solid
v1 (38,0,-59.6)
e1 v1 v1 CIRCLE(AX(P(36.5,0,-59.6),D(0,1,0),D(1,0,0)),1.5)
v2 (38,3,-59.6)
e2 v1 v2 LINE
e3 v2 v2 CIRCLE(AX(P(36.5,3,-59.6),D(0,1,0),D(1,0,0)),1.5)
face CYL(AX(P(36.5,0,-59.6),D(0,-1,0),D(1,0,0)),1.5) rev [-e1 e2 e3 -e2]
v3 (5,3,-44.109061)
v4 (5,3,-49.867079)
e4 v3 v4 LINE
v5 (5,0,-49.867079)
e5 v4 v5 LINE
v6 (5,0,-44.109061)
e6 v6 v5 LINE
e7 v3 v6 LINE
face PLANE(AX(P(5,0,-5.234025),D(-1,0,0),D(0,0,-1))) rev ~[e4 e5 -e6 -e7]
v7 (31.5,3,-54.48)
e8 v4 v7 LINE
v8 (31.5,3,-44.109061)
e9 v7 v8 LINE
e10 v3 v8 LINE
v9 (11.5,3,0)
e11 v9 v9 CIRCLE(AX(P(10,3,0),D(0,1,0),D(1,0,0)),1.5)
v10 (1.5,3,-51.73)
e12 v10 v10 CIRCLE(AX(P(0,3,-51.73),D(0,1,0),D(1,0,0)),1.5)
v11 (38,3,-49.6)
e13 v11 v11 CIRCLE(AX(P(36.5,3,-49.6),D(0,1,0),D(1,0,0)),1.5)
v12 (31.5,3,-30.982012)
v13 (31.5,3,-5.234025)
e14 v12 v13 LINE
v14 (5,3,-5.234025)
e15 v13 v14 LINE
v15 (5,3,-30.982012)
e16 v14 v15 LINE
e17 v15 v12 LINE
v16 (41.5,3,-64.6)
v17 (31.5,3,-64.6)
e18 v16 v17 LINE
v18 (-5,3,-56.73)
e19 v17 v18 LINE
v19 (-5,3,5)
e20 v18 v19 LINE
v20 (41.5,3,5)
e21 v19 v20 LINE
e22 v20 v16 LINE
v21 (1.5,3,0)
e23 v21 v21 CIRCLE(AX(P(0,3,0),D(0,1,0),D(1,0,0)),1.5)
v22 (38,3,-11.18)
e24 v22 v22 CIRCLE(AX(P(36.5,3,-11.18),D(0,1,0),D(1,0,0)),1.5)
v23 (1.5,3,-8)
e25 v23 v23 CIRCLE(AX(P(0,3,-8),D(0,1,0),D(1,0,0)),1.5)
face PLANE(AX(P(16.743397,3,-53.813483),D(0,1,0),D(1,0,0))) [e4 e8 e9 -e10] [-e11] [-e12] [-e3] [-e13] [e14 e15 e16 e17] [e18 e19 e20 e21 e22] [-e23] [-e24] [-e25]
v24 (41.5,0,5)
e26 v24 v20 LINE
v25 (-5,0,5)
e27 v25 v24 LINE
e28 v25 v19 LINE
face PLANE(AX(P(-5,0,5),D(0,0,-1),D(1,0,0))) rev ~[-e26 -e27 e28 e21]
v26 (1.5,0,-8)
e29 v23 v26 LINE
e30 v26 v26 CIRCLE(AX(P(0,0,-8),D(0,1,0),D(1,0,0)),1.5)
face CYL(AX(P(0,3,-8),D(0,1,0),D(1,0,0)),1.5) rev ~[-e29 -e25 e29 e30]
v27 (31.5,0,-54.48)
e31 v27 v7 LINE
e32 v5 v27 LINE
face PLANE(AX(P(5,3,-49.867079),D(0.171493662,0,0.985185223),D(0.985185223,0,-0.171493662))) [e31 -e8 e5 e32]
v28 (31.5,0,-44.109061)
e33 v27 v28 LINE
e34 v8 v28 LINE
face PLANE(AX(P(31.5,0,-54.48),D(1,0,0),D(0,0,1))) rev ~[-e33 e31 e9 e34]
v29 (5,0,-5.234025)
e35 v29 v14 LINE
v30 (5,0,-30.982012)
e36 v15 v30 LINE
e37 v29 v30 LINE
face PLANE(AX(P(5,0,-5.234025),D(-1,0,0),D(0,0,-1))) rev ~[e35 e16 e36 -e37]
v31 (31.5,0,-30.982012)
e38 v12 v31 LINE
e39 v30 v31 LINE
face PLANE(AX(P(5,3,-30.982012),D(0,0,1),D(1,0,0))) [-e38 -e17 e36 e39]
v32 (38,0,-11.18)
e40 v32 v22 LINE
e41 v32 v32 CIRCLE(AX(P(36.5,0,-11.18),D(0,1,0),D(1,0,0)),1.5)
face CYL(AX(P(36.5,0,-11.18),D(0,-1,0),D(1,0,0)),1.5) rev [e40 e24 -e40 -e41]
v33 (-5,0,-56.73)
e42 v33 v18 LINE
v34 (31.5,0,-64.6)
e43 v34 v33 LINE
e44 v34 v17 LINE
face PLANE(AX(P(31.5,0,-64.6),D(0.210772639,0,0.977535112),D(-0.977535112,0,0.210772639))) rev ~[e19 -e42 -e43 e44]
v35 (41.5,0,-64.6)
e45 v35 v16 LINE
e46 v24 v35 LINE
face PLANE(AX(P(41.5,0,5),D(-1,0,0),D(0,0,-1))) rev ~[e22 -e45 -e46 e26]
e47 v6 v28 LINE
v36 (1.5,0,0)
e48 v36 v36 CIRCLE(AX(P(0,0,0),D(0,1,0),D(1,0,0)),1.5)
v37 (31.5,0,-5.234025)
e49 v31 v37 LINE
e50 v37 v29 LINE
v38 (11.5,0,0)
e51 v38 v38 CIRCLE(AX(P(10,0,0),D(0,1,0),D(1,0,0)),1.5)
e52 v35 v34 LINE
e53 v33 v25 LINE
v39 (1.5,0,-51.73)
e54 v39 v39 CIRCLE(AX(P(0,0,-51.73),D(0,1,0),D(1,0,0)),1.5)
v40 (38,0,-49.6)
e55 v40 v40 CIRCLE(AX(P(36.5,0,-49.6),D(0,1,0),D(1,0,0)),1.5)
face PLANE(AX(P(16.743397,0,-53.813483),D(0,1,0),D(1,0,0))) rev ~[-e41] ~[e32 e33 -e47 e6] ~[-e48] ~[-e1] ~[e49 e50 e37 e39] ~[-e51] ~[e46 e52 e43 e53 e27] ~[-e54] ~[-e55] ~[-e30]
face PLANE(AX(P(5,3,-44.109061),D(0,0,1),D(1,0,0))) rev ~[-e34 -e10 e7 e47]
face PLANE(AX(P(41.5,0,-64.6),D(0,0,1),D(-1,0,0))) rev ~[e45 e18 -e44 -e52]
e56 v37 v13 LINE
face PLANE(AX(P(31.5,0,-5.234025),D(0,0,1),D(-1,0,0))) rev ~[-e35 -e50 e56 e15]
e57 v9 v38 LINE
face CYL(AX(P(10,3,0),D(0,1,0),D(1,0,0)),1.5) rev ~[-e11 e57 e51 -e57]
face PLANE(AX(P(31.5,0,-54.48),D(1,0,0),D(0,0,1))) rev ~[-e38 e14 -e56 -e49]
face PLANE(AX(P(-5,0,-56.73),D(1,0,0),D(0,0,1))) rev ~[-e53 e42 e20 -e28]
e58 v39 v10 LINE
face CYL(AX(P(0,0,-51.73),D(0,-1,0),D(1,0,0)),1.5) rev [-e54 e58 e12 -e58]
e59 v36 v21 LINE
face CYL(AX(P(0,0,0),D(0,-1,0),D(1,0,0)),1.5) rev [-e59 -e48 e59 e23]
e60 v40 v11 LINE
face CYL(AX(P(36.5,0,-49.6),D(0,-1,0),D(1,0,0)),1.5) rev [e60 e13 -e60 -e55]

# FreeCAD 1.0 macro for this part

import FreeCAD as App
import Part
import Sketcher


def add_polygon(sketch, points):
    """Adds a closed chain of lines whose ends are joined by coincident constraints."""
    first, n = sketch.GeometryCount, len(points)
    for a, b in zip(points, points[1:] + points[:1]):
        sketch.addGeometry(Part.LineSegment(App.Vector(*a, 0), App.Vector(*b, 0)), False)
    for i in range(n):
        sketch.addConstraint(Sketcher.Constraint("Coincident", first + i, 2, first + (i + 1) % n, 1))

doc = App.newDocument("Part")
body = doc.addObject("PartDesign::Body", "Body")

# Sketch on XZ plane
sketch1 = doc.addObject("Sketcher::SketchObject", "Sketch")
body.addObject(sketch1)
sketch1.AttachmentSupport = (doc.XZ_Plane, [""])
sketch1.MapMode = "FlatFace"
add_polygon(sketch1, [(-5, 5), (41.5, 5), (41.5, -64.6), (31.5, -64.6), (-5, -56.73)])  # lines 0-4
sketch1.addGeometry(Part.Circle(App.Vector(0, 0, 0), App.Vector(0, 0, 1), 1.5), False)  # 5
sketch1.addGeometry(Part.Circle(App.Vector(36.5, -11.18, 0), App.Vector(0, 0, 1), 1.5), False)  # 6
sketch1.addGeometry(Part.Circle(App.Vector(0, -51.73, 0), App.Vector(0, 0, 1), 1.5), False)  # 7
add_polygon(sketch1, [(5, -56.73), (31.5, -54.48), (31.5, -5.234025), (5, -5.234025)])  # lines 8-11
sketch1.addGeometry(Part.Circle(App.Vector(36.5, -49.6, 0), App.Vector(0, 0, 1), 1.5), False)  # 12
sketch1.addGeometry(Part.Circle(App.Vector(36.5, -59.6, 0), App.Vector(0, 0, 1), 1.5), False)  # 13
sketch1.addConstraint(Sketcher.Constraint("Horizontal", 0))
sketch1.addConstraint(Sketcher.Constraint("Vertical", 1))
sketch1.addConstraint(Sketcher.Constraint("Horizontal", 2))
sketch1.addConstraint(Sketcher.Constraint("Vertical", 4))
sketch1.addConstraint(Sketcher.Constraint("Vertical", 9))
sketch1.addConstraint(Sketcher.Constraint("Horizontal", 10))
sketch1.addConstraint(Sketcher.Constraint("Vertical", 11))
sketch1.addConstraint(Sketcher.Constraint("Coincident", 5, 3, -1, 1))
sketch1.addConstraint(Sketcher.Constraint("Equal", 5, 6))
sketch1.addConstraint(Sketcher.Constraint("Equal", 6, 7))
sketch1.addConstraint(Sketcher.Constraint("Equal", 7, 12))
sketch1.addConstraint(Sketcher.Constraint("Equal", 12, 13))
sketch1.addConstraint(Sketcher.Constraint("Symmetric", 3, 2, 11, 2, -2))
sketch1.addConstraint(Sketcher.Constraint("PointOnObject", 7, 3, -2))
sketch1.addConstraint(Sketcher.Constraint("Vertical", 6, 3, 12, 3))
sketch1.addConstraint(Sketcher.Constraint("Vertical", 12, 3, 13, 3))
sketch1.addConstraint(Sketcher.Constraint("Vertical", 2, 2, 8, 2))
sketch1.addConstraint(Sketcher.Constraint("Diameter", 5, 3.0))
sketch1.addConstraint(Sketcher.Constraint("DistanceX", 2, 2, 2, 1, 10.0))
sketch1.addConstraint(Sketcher.Constraint("DistanceX", 0, 1, 0, 2, 46.5))
sketch1.addConstraint(Sketcher.Constraint("DistanceX", 10, 2, 10, 1, 26.5))
sketch1.addConstraint(Sketcher.Constraint("DistanceY", 1, 2, 1, 1, 69.6))
sketch1.addConstraint(Sketcher.Constraint("DistanceY", -1, 1, 0, 2, 5.0))
sketch1.addConstraint(Sketcher.Constraint("DistanceY", 13, 3, 12, 3, 10.0))
sketch1.addConstraint(Sketcher.Constraint("DistanceX", 6, 3, 0, 2, 5.0))
sketch1.addConstraint(Sketcher.Constraint("DistanceY", 1, 2, 13, 3, 5.0))
sketch1.addConstraint(Sketcher.Constraint("DistanceY", 3, 2, 7, 3, 5.0))
sketch1.addConstraint(Sketcher.Constraint("DistanceY", 4, 1, 4, 2, 61.73))
sketch1.addConstraint(Sketcher.Constraint("DistanceY", 6, 3, -1, 1, 11.18))
sketch1.addConstraint(Sketcher.Constraint("DistanceY", 8, 2, -1, 1, 54.48))
sketch1.addConstraint(Sketcher.Constraint("DistanceY", 9, 1, 9, 2, 49.245975))
pad1 = doc.addObject("PartDesign::Pad", "Pad")
body.addObject(pad1)
pad1.Profile = sketch1
pad1.Length = 3
pad1.Reversed = True

# Sketch on XZ plane
sketch2 = doc.addObject("Sketcher::SketchObject", "Sketch001")
body.addObject(sketch2)
sketch2.AttachmentSupport = (doc.XZ_Plane, [""])
sketch2.MapMode = "FlatFace"
sketch2.AttachmentOffset = App.Placement(App.Vector(0, 0, -3), App.Rotation())
add_polygon(sketch2, [(5, -44.109061), (5, -30.982012), (31.5, -30.982012), (31.5, -44.109061)])  # lines 0-3
add_polygon(sketch2, [(5, -56.73), (5, -49.867079), (31.5, -54.48)])  # lines 4-6
sketch2.addConstraint(Sketcher.Constraint("Vertical", 0))
sketch2.addConstraint(Sketcher.Constraint("Horizontal", 1))
sketch2.addConstraint(Sketcher.Constraint("Vertical", 2))
sketch2.addConstraint(Sketcher.Constraint("Horizontal", 3))
sketch2.addConstraint(Sketcher.Constraint("Vertical", 4))
sketch2.addConstraint(Sketcher.Constraint("Vertical", 3, 2, 4, 2))
sketch2.addConstraint(Sketcher.Constraint("Vertical", 2, 2, 5, 2))
sketch2.addConstraint(Sketcher.Constraint("DistanceX", 1, 1, 1, 2, 26.5))
sketch2.addConstraint(Sketcher.Constraint("DistanceX", -1, 1, 0, 2, 5.0))
sketch2.addConstraint(Sketcher.Constraint("DistanceY", 5, 2, -1, 1, 54.48))
sketch2.addConstraint(Sketcher.Constraint("DistanceY", 6, 2, -1, 1, 56.73))
sketch2.addConstraint(Sketcher.Constraint("DistanceY", 0, 1, 0, 2, 13.127049))
sketch2.addConstraint(Sketcher.Constraint("DistanceY", 4, 1, 4, 2, 6.862921))
sketch2.addConstraint(Sketcher.Constraint("DistanceY", 2, 2, -1, 1, 44.109061))
pad2 = doc.addObject("PartDesign::Pad", "Pad001")
body.addObject(pad2)
pad2.Profile = sketch2
pad2.Length = 3

# Sketch on XZ plane
sketch3 = doc.addObject("Sketcher::SketchObject", "Sketch002")
body.addObject(sketch3)
sketch3.AttachmentSupport = (doc.XZ_Plane, [""])
sketch3.MapMode = "FlatFace"
sketch3.AttachmentOffset = App.Placement(App.Vector(0, 0, -3), App.Rotation())
sketch3.addGeometry(Part.Circle(App.Vector(10, 0, 0), App.Vector(0, 0, 1), 1.5), False)
sketch3.addConstraint(Sketcher.Constraint("PointOnObject", 0, 3, -1))
sketch3.addConstraint(Sketcher.Constraint("Diameter", 0, 3.0))
sketch3.addConstraint(Sketcher.Constraint("DistanceX", -1, 1, 0, 3, 10.0))
pocket1 = doc.addObject("PartDesign::Pocket", "Pocket")
body.addObject(pocket1)
pocket1.Profile = sketch3
pocket1.Length = 10
pocket1.Reversed = True

# Sketch on XZ plane
sketch4 = doc.addObject("Sketcher::SketchObject", "Sketch003")
body.addObject(sketch4)
sketch4.AttachmentSupport = (doc.XZ_Plane, [""])
sketch4.MapMode = "FlatFace"
sketch4.AttachmentOffset = App.Placement(App.Vector(0, 0, -3), App.Rotation())
sketch4.addGeometry(Part.Circle(App.Vector(0, -8, 0), App.Vector(0, 0, 1), 1.5), False)
sketch4.addConstraint(Sketcher.Constraint("PointOnObject", 0, 3, -2))
sketch4.addConstraint(Sketcher.Constraint("Diameter", 0, 3.0))
sketch4.addConstraint(Sketcher.Constraint("DistanceY", 0, 3, -1, 1, 8.0))
pocket2 = doc.addObject("PartDesign::Pocket", "Pocket001")
body.addObject(pocket2)
pocket2.Profile = sketch4
pocket2.Length = 10
pocket2.Reversed = True

doc.recompute()
